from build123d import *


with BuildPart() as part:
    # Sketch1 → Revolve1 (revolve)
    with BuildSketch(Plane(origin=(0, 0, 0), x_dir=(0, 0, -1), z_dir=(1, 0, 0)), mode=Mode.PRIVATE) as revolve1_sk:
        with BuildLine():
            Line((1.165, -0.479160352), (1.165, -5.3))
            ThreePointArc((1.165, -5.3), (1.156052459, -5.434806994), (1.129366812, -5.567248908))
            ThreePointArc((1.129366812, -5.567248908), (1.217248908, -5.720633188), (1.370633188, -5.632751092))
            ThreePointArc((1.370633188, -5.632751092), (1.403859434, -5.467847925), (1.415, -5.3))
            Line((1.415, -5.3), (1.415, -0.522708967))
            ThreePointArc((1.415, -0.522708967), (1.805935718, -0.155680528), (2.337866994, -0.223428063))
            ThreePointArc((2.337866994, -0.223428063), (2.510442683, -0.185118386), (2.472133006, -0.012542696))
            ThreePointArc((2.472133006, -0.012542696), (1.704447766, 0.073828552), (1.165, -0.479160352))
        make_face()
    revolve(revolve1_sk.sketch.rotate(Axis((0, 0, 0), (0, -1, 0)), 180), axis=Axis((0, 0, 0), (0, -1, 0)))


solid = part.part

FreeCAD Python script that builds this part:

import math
import FreeCAD as App
import Part
import Sketcher
from FreeCAD import Vector
Q = App.Units.Quantity

doc = App.newDocument("Part")
body = doc.addObject("PartDesign::Body", "Body")

# Sketch on YZ plane
sketch1 = body.newObject("Sketcher::SketchObject", "Sketch")
sketch1.AttachmentSupport = (doc.getObject("YZ_Plane"), [""])
sketch1.MapMode = "FlatFace"
sketch1.addGeometry(Part.LineSegment(Vector(-0.48, -1.17, 0), Vector(-5.3, -1.17, 0)), False)
sketch1.addGeometry(Part.ArcOfCircle(Part.Circle(Vector(-5.3, -0.15, 0), Vector(0, 0, 1), 1.02), math.radians(-105.19), math.radians(-90)), False)
sketch1.addGeometry(Part.ArcOfCircle(Part.Circle(Vector(-5.6, -1.25, 0), Vector(0, 0, 1), 0.12), math.radians(75), math.radians(255)), False)
sketch1.addGeometry(Part.ArcOfCircle(Part.Circle(Vector(-5.3, -0.15, 0), Vector(0, 0, 1), 1.27), math.radians(-105.19), math.radians(-90)), False)
sketch1.addGeometry(Part.LineSegment(Vector(-5.3, -1.42, 0), Vector(-0.52, -1.42, 0)), False)
sketch1.addGeometry(Part.ArcOfCircle(Part.Circle(Vector(-0.75, -2, 0), Vector(0, 0, 1), 0.63), math.radians(-32), math.radians(68)), False)
sketch1.addGeometry(Part.ArcOfCircle(Part.Circle(Vector(-0.12, -2.4, 0), Vector(0, 0, 1), 0.12), math.radians(148), math.radians(328)), False)
sketch1.addGeometry(Part.ArcOfCircle(Part.Circle(Vector(-0.75, -2, 0), Vector(0, 0, 1), 0.88), math.radians(-32), math.radians(72)), False)
sketch1.addConstraint(Sketcher.Constraint("Tangent", 0, 2, 1, 2))
sketch1.addConstraint(Sketcher.Constraint("Tangent", 1, 1, 2, 1))
sketch1.addConstraint(Sketcher.Constraint("Tangent", 2, 2, 3, 1))
sketch1.addConstraint(Sketcher.Constraint("Tangent", 3, 2, 4, 1))
sketch1.addConstraint(Sketcher.Constraint("Coincident", 4, 2, 5, 2))
sketch1.addConstraint(Sketcher.Constraint("Tangent", 5, 1, 6, 1))
sketch1.addConstraint(Sketcher.Constraint("Tangent", 6, 2, 7, 1))
sketch1.addConstraint(Sketcher.Constraint("Coincident", 7, 2, 0, 1))
sketch1.addConstraint(Sketcher.Constraint("Horizontal", 0))
sketch1.addConstraint(Sketcher.Constraint("Horizontal", 4))
sketch1.addConstraint(Sketcher.Constraint("Coincident", 3, 3, 1, 3))
sketch1.addConstraint(Sketcher.Constraint("Coincident", 7, 3, 5, 3))
sketch1.addConstraint(Sketcher.Constraint("Equal", 2, 6))
sketch1.addConstraint(Sketcher.Constraint("Radius", 3, Q("0.05 in")))
sketch1.addConstraint(Sketcher.Constraint("Radius", 1, 1.02))
sketch1.addConstraint(Sketcher.Constraint("Radius", 5, 0.6291))
sketch1.addConstraint(Sketcher.Constraint("DistanceX", 0, 2, 0, 1, 4.82084))
sketch1.addConstraint(Sketcher.Constraint("DistanceX", 4, 1, 4, 2, 4.777291))
sketch1.addConstraint(Sketcher.Constraint("DistanceX", 1, 3, -1, 1, 5.3))
sketch1.addConstraint(Sketcher.Constraint("DistanceY", 1, 3, -1, 1, 0.145))
sketch1.addConstraint(Sketcher.Constraint("DistanceX", 2, 3, -1, 1, 5.6))
sketch1.addConstraint(Sketcher.Constraint("DistanceY", 6, 3, -1, 1, 2.405))
revolution = body.newObject("PartDesign::Revolution", "Revolution")
revolution.Profile = sketch1
revolution.ReferenceAxis = (sketch1, ["H_Axis"])
revolution.Angle = 360

doc.recompute()
